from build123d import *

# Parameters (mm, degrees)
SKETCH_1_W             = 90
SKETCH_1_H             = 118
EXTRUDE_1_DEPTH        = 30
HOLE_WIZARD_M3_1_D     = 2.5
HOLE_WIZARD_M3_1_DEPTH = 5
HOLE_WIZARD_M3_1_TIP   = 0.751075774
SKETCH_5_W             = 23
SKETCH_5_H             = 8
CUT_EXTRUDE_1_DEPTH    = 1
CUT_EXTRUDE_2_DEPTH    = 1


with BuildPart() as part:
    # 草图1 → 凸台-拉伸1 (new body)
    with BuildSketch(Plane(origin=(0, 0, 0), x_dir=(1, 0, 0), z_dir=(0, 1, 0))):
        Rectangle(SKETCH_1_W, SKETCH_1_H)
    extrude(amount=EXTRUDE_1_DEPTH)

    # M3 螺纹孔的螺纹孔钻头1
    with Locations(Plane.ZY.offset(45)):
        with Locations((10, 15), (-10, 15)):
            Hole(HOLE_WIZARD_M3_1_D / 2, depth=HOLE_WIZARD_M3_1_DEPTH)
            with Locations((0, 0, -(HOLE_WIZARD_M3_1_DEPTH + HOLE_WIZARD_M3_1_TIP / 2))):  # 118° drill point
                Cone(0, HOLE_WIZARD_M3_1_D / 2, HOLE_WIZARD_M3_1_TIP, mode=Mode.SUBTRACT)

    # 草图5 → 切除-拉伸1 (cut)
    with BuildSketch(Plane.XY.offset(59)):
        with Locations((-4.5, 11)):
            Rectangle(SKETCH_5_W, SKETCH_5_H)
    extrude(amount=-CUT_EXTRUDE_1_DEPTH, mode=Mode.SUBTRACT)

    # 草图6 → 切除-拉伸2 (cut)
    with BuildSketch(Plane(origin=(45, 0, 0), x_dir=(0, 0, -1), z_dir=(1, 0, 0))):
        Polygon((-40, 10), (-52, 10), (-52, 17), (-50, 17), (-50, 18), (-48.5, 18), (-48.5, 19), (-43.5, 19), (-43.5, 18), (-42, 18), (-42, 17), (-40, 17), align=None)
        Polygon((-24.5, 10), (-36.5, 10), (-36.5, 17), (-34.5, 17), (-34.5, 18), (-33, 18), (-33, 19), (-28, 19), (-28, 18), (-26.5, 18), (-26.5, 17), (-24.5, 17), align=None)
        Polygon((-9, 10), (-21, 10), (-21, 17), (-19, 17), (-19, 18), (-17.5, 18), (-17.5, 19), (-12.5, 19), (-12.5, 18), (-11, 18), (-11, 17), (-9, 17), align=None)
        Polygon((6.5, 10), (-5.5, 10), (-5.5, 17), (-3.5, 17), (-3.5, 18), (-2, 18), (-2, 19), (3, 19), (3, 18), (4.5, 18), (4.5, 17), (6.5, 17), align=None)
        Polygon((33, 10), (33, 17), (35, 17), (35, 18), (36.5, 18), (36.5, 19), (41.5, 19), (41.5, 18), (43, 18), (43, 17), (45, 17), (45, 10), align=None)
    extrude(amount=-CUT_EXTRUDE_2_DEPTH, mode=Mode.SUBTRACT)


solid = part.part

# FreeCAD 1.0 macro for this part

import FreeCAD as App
import Part
import Sketcher
Q = App.Units.Quantity

doc = App.newDocument("Part")
body = doc.addObject("PartDesign::Body", "Body")

# Sketch on XZ plane
sketch1 = body.newObject("Sketcher::SketchObject", "Sketch")
sketch1.AttachmentSupport = (doc.getObject("XZ_Plane"), [""])
sketch1.MapMode = "FlatFace"
sketch1.addGeometry([
    Part.LineSegment(App.Vector(-45, -59, 0), App.Vector(-45, 59, 0)),
    Part.LineSegment(App.Vector(-45, 59, 0), App.Vector(45, 59, 0)),
    Part.LineSegment(App.Vector(45, 59, 0), App.Vector(45, -59, 0)),
    Part.LineSegment(App.Vector(45, -59, 0), App.Vector(-45, -59, 0)),
], False)
sketch1.addConstraint([
    Sketcher.Constraint("Coincident", 0, 2, 1, 1),
    Sketcher.Constraint("Coincident", 1, 2, 2, 1),
    Sketcher.Constraint("Coincident", 2, 2, 3, 1),
    Sketcher.Constraint("Coincident", 3, 2, 0, 1),
    Sketcher.Constraint("Vertical", 0),
    Sketcher.Constraint("Horizontal", 1),
    Sketcher.Constraint("Vertical", 2),
    Sketcher.Constraint("Horizontal", 3),
    Sketcher.Constraint("Symmetric", 0, 2, 2, 2, -1, 1),
    Sketcher.Constraint("DistanceX", 1, 1, 1, 2, Q("90 mm")),
    Sketcher.Constraint("DistanceY", 0, 1, 0, 2, Q("118 mm")),
])
pad1 = body.newObject("PartDesign::Pad", "Pad")
pad1.Profile = sketch1
pad1.Length = 30
pad1.Reversed = True

# Sketch on YZ plane
sketch2 = body.newObject("Sketcher::SketchObject", "Sketch001")
sketch2.AttachmentSupport = (doc.getObject("YZ_Plane"), [""])
sketch2.MapMode = "FlatFace"
sketch2.AttachmentOffset = App.Placement(App.Vector(0, 0, -45), App.Rotation())
sketch2.addGeometry([
    Part.Circle(App.Vector(15, 10, 0), App.Vector(0, 0, 1), 1.25),
    Part.Circle(App.Vector(15, -10, 0), App.Vector(0, 0, 1), 1.25),
], False)
sketch2.addConstraint([
    Sketcher.Constraint("Equal", 0, 1),
    Sketcher.Constraint("Symmetric", 0, 3, 1, 3, -1),
    Sketcher.Constraint("Diameter", 0, Q("2.5 mm")),
    Sketcher.Constraint("DistanceX", -1, 1, 0, 3, Q("15 mm")),
    Sketcher.Constraint("DistanceY", -1, 1, 0, 3, Q("10 mm")),
])
doc.recompute()
hole = body.newObject("PartDesign::Hole", "Hole")
hole.Profile = sketch2
hole.ThreadType = "None"
hole.Diameter = 2.5
hole.DepthType = "Dimension"
hole.Depth = 5
hole.DrillPoint = "Angled"
hole.DrillPointAngle = 118
hole.Reversed = True

# Sketch on XY plane
sketch3 = body.newObject("Sketcher::SketchObject", "Sketch002")
sketch3.AttachmentSupport = (doc.getObject("XY_Plane"), [""])
sketch3.MapMode = "FlatFace"
sketch3.AttachmentOffset = App.Placement(App.Vector(0, 0, 59), App.Rotation())
sketch3.addGeometry([
    Part.LineSegment(App.Vector(-16, 15, 0), App.Vector(-16, 7, 0)),
    Part.LineSegment(App.Vector(-16, 7, 0), App.Vector(7, 7, 0)),
    Part.LineSegment(App.Vector(7, 7, 0), App.Vector(7, 15, 0)),
    Part.LineSegment(App.Vector(7, 15, 0), App.Vector(-16, 15, 0)),
], False)
sketch3.addConstraint([
    Sketcher.Constraint("Coincident", 0, 2, 1, 1),
    Sketcher.Constraint("Coincident", 1, 2, 2, 1),
    Sketcher.Constraint("Coincident", 2, 2, 3, 1),
    Sketcher.Constraint("Coincident", 3, 2, 0, 1),
    Sketcher.Constraint("Vertical", 0),
    Sketcher.Constraint("Horizontal", 1),
    Sketcher.Constraint("Vertical", 2),
    Sketcher.Constraint("Horizontal", 3),
    Sketcher.Constraint("DistanceX", 1, 1, 1, 2, Q("23 mm")),
    Sketcher.Constraint("DistanceY", 0, 2, 0, 1, Q("8 mm")),
    Sketcher.Constraint("DistanceX", 0, 2, -1, 1, Q("16 mm")),
    Sketcher.Constraint("DistanceY", -1, 1, 0, 2, Q("7 mm")),
])
pocket1 = body.newObject("PartDesign::Pocket", "Pocket")
pocket1.Profile = sketch3
pocket1.Length = 1

# Sketch on YZ plane
sketch4 = body.newObject("Sketcher::SketchObject", "Sketch003")
sketch4.AttachmentSupport = (doc.getObject("YZ_Plane"), [""])
sketch4.MapMode = "FlatFace"
sketch4.AttachmentOffset = App.Placement(App.Vector(0, 0, 45), App.Rotation())
sketch4.addGeometry([
    Part.LineSegment(App.Vector(10, 52, 0), App.Vector(10, 40, 0)),  # 0
    Part.LineSegment(App.Vector(10, 40, 0), App.Vector(17, 40, 0)),  # 1
    Part.LineSegment(App.Vector(17, 40, 0), App.Vector(17, 42, 0)),  # 2
    Part.LineSegment(App.Vector(17, 42, 0), App.Vector(18, 42, 0)),  # 3
    Part.LineSegment(App.Vector(18, 42, 0), App.Vector(18, 43.5, 0)),  # 4
    Part.LineSegment(App.Vector(18, 43.5, 0), App.Vector(19, 43.5, 0)),  # 5
    Part.LineSegment(App.Vector(19, 43.5, 0), App.Vector(19, 48.5, 0)),  # 6
    Part.LineSegment(App.Vector(19, 48.5, 0), App.Vector(18, 48.5, 0)),  # 7
    Part.LineSegment(App.Vector(18, 48.5, 0), App.Vector(18, 50, 0)),  # 8
    Part.LineSegment(App.Vector(18, 50, 0), App.Vector(17, 50, 0)),  # 9
    Part.LineSegment(App.Vector(17, 50, 0), App.Vector(17, 52, 0)),  # 10
    Part.LineSegment(App.Vector(17, 52, 0), App.Vector(10, 52, 0)),  # 11
    Part.LineSegment(App.Vector(10, 36.5, 0), App.Vector(10, 24.5, 0)),  # 12
    Part.LineSegment(App.Vector(10, 24.5, 0), App.Vector(17, 24.5, 0)),  # 13
    Part.LineSegment(App.Vector(17, 24.5, 0), App.Vector(17, 26.5, 0)),  # 14
    Part.LineSegment(App.Vector(17, 26.5, 0), App.Vector(18, 26.5, 0)),  # 15
    Part.LineSegment(App.Vector(18, 26.5, 0), App.Vector(18, 28, 0)),  # 16
    Part.LineSegment(App.Vector(18, 28, 0), App.Vector(19, 28, 0)),  # 17
    Part.LineSegment(App.Vector(19, 28, 0), App.Vector(19, 33, 0)),  # 18
    Part.LineSegment(App.Vector(19, 33, 0), App.Vector(18, 33, 0)),  # 19
    Part.LineSegment(App.Vector(18, 33, 0), App.Vector(18, 34.5, 0)),  # 20
    Part.LineSegment(App.Vector(18, 34.5, 0), App.Vector(17, 34.5, 0)),  # 21
    Part.LineSegment(App.Vector(17, 34.5, 0), App.Vector(17, 36.5, 0)),  # 22
    Part.LineSegment(App.Vector(17, 36.5, 0), App.Vector(10, 36.5, 0)),  # 23
    Part.LineSegment(App.Vector(10, 21, 0), App.Vector(10, 9, 0)),  # 24
    Part.LineSegment(App.Vector(10, 9, 0), App.Vector(17, 9, 0)),  # 25
    Part.LineSegment(App.Vector(17, 9, 0), App.Vector(17, 11, 0)),  # 26
    Part.LineSegment(App.Vector(17, 11, 0), App.Vector(18, 11, 0)),  # 27
    Part.LineSegment(App.Vector(18, 11, 0), App.Vector(18, 12.5, 0)),  # 28
    Part.LineSegment(App.Vector(18, 12.5, 0), App.Vector(19, 12.5, 0)),  # 29
    Part.LineSegment(App.Vector(19, 12.5, 0), App.Vector(19, 17.5, 0)),  # 30
    Part.LineSegment(App.Vector(19, 17.5, 0), App.Vector(18, 17.5, 0)),  # 31
    Part.LineSegment(App.Vector(18, 17.5, 0), App.Vector(18, 19, 0)),  # 32
    Part.LineSegment(App.Vector(18, 19, 0), App.Vector(17, 19, 0)),  # 33
    Part.LineSegment(App.Vector(17, 19, 0), App.Vector(17, 21, 0)),  # 34
    Part.LineSegment(App.Vector(17, 21, 0), App.Vector(10, 21, 0)),  # 35
    Part.LineSegment(App.Vector(10, 5.5, 0), App.Vector(10, -6.5, 0)),  # 36
    Part.LineSegment(App.Vector(10, -6.5, 0), App.Vector(17, -6.5, 0)),  # 37
    Part.LineSegment(App.Vector(17, -6.5, 0), App.Vector(17, -4.5, 0)),  # 38
    Part.LineSegment(App.Vector(17, -4.5, 0), App.Vector(18, -4.5, 0)),  # 39
    Part.LineSegment(App.Vector(18, -4.5, 0), App.Vector(18, -3, 0)),  # 40
    Part.LineSegment(App.Vector(18, -3, 0), App.Vector(19, -3, 0)),  # 41
    Part.LineSegment(App.Vector(19, -3, 0), App.Vector(19, 2, 0)),  # 42
    Part.LineSegment(App.Vector(19, 2, 0), App.Vector(18, 2, 0)),  # 43
    Part.LineSegment(App.Vector(18, 2, 0), App.Vector(18, 3.5, 0)),  # 44
    Part.LineSegment(App.Vector(18, 3.5, 0), App.Vector(17, 3.5, 0)),  # 45
    Part.LineSegment(App.Vector(17, 3.5, 0), App.Vector(17, 5.5, 0)),  # 46
    Part.LineSegment(App.Vector(17, 5.5, 0), App.Vector(10, 5.5, 0)),  # 47
    Part.LineSegment(App.Vector(17, -33, 0), App.Vector(10, -33, 0)),  # 48
    Part.LineSegment(App.Vector(10, -33, 0), App.Vector(10, -45, 0)),  # 49
    Part.LineSegment(App.Vector(10, -45, 0), App.Vector(17, -45, 0)),  # 50
    Part.LineSegment(App.Vector(17, -45, 0), App.Vector(17, -43, 0)),  # 51
    Part.LineSegment(App.Vector(17, -43, 0), App.Vector(18, -43, 0)),  # 52
    Part.LineSegment(App.Vector(18, -43, 0), App.Vector(18, -41.5, 0)),  # 53
    Part.LineSegment(App.Vector(18, -41.5, 0), App.Vector(19, -41.5, 0)),  # 54
    Part.LineSegment(App.Vector(19, -41.5, 0), App.Vector(19, -36.5, 0)),  # 55
    Part.LineSegment(App.Vector(19, -36.5, 0), App.Vector(18, -36.5, 0)),  # 56
    Part.LineSegment(App.Vector(18, -36.5, 0), App.Vector(18, -35, 0)),  # 57
    Part.LineSegment(App.Vector(18, -35, 0), App.Vector(17, -35, 0)),  # 58
    Part.LineSegment(App.Vector(17, -35, 0), App.Vector(17, -33, 0)),  # 59
], False)
sketch4.addConstraint([
    Sketcher.Constraint("Coincident", 0, 2, 1, 1),
    Sketcher.Constraint("Coincident", 1, 2, 2, 1),
    Sketcher.Constraint("Coincident", 2, 2, 3, 1),
    Sketcher.Constraint("Coincident", 3, 2, 4, 1),
    Sketcher.Constraint("Coincident", 4, 2, 5, 1),
    Sketcher.Constraint("Coincident", 5, 2, 6, 1),
    Sketcher.Constraint("Coincident", 6, 2, 7, 1),
    Sketcher.Constraint("Coincident", 7, 2, 8, 1),
    Sketcher.Constraint("Coincident", 8, 2, 9, 1),
    Sketcher.Constraint("Coincident", 9, 2, 10, 1),
    Sketcher.Constraint("Coincident", 10, 2, 11, 1),
    Sketcher.Constraint("Coincident", 11, 2, 0, 1),
    Sketcher.Constraint("Coincident", 12, 2, 13, 1),
    Sketcher.Constraint("Coincident", 13, 2, 14, 1),
    Sketcher.Constraint("Coincident", 14, 2, 15, 1),
    Sketcher.Constraint("Coincident", 15, 2, 16, 1),
    Sketcher.Constraint("Coincident", 16, 2, 17, 1),
    Sketcher.Constraint("Coincident", 17, 2, 18, 1),
    Sketcher.Constraint("Coincident", 18, 2, 19, 1),
    Sketcher.Constraint("Coincident", 19, 2, 20, 1),
    Sketcher.Constraint("Coincident", 20, 2, 21, 1),
    Sketcher.Constraint("Coincident", 21, 2, 22, 1),
    Sketcher.Constraint("Coincident", 22, 2, 23, 1),
    Sketcher.Constraint("Coincident", 23, 2, 12, 1),
    Sketcher.Constraint("Coincident", 24, 2, 25, 1),
    Sketcher.Constraint("Coincident", 25, 2, 26, 1),
    Sketcher.Constraint("Coincident", 26, 2, 27, 1),
    Sketcher.Constraint("Coincident", 27, 2, 28, 1),
    Sketcher.Constraint("Coincident", 28, 2, 29, 1),
    Sketcher.Constraint("Coincident", 29, 2, 30, 1),
    Sketcher.Constraint("Coincident", 30, 2, 31, 1),
    Sketcher.Constraint("Coincident", 31, 2, 32, 1),
    Sketcher.Constraint("Coincident", 32, 2, 33, 1),
    Sketcher.Constraint("Coincident", 33, 2, 34, 1),
    Sketcher.Constraint("Coincident", 34, 2, 35, 1),
    Sketcher.Constraint("Coincident", 35, 2, 24, 1),
    Sketcher.Constraint("Coincident", 36, 2, 37, 1),
    Sketcher.Constraint("Coincident", 37, 2, 38, 1),
    Sketcher.Constraint("Coincident", 38, 2, 39, 1),
    Sketcher.Constraint("Coincident", 39, 2, 40, 1),
    Sketcher.Constraint("Coincident", 40, 2, 41, 1),
    Sketcher.Constraint("Coincident", 41, 2, 42, 1),
    Sketcher.Constraint("Coincident", 42, 2, 43, 1),
    Sketcher.Constraint("Coincident", 43, 2, 44, 1),
    Sketcher.Constraint("Coincident", 44, 2, 45, 1),
    Sketcher.Constraint("Coincident", 45, 2, 46, 1),
    Sketcher.Constraint("Coincident", 46, 2, 47, 1),
    Sketcher.Constraint("Coincident", 47, 2, 36, 1),
    Sketcher.Constraint("Coincident", 48, 2, 49, 1),
    Sketcher.Constraint("Coincident", 49, 2, 50, 1),
    Sketcher.Constraint("Coincident", 50, 2, 51, 1),
    Sketcher.Constraint("Coincident", 51, 2, 52, 1),
    Sketcher.Constraint("Coincident", 52, 2, 53, 1),
    Sketcher.Constraint("Coincident", 53, 2, 54, 1),
    Sketcher.Constraint("Coincident", 54, 2, 55, 1),
    Sketcher.Constraint("Coincident", 55, 2, 56, 1),
    Sketcher.Constraint("Coincident", 56, 2, 57, 1),
    Sketcher.Constraint("Coincident", 57, 2, 58, 1),
    Sketcher.Constraint("Coincident", 58, 2, 59, 1),
    Sketcher.Constraint("Coincident", 59, 2, 48, 1),
    Sketcher.Constraint("Vertical", 0),
    Sketcher.Constraint("Horizontal", 1),
    Sketcher.Constraint("Vertical", 2),
    Sketcher.Constraint("Horizontal", 3),
    Sketcher.Constraint("Vertical", 4),
    Sketcher.Constraint("Horizontal", 5),
    Sketcher.Constraint("Vertical", 6),
    Sketcher.Constraint("Horizontal", 7),
    Sketcher.Constraint("Vertical", 8),
    Sketcher.Constraint("Horizontal", 9),
    Sketcher.Constraint("Vertical", 10),
    Sketcher.Constraint("Horizontal", 11),
    Sketcher.Constraint("Vertical", 12),
    Sketcher.Constraint("Horizontal", 13),
    Sketcher.Constraint("Vertical", 14),
    Sketcher.Constraint("Horizontal", 15),
    Sketcher.Constraint("Vertical", 16),
    Sketcher.Constraint("Horizontal", 17),
    Sketcher.Constraint("Vertical", 18),
    Sketcher.Constraint("Horizontal", 19),
    Sketcher.Constraint("Vertical", 20),
    Sketcher.Constraint("Horizontal", 21),
    Sketcher.Constraint("Vertical", 22),
    Sketcher.Constraint("Horizontal", 23),
    Sketcher.Constraint("Vertical", 24),
    Sketcher.Constraint("Horizontal", 25),
    Sketcher.Constraint("Vertical", 26),
    Sketcher.Constraint("Horizontal", 27),
    Sketcher.Constraint("Vertical", 28),
    Sketcher.Constraint("Horizontal", 29),
    Sketcher.Constraint("Vertical", 30),
    Sketcher.Constraint("Horizontal", 31),
    Sketcher.Constraint("Vertical", 32),
    Sketcher.Constraint("Horizontal", 33),
    Sketcher.Constraint("Vertical", 34),
    Sketcher.Constraint("Horizontal", 35),
    Sketcher.Constraint("Vertical", 36),
    Sketcher.Constraint("Horizontal", 37),
    Sketcher.Constraint("Vertical", 38),
    Sketcher.Constraint("Horizontal", 39),
    Sketcher.Constraint("Vertical", 40),
    Sketcher.Constraint("Horizontal", 41),
    Sketcher.Constraint("Vertical", 42),
    Sketcher.Constraint("Horizontal", 43),
    Sketcher.Constraint("Vertical", 44),
    Sketcher.Constraint("Horizontal", 45),
    Sketcher.Constraint("Vertical", 46),
    Sketcher.Constraint("Horizontal", 47),
    Sketcher.Constraint("Horizontal", 48),
    Sketcher.Constraint("Vertical", 49),
    Sketcher.Constraint("Horizontal", 50),
    Sketcher.Constraint("Vertical", 51),
    Sketcher.Constraint("Horizontal", 52),
    Sketcher.Constraint("Vertical", 53),
    Sketcher.Constraint("Horizontal", 54),
    Sketcher.Constraint("Vertical", 55),
    Sketcher.Constraint("Horizontal", 56),
    Sketcher.Constraint("Vertical", 57),
    Sketcher.Constraint("Horizontal", 58),
    Sketcher.Constraint("Vertical", 59),
    Sketcher.Constraint("Vertical", 4, 2, 7, 2),
    Sketcher.Constraint("Vertical", 2, 2, 9, 2),
    Sketcher.Constraint("Vertical", 11, 2, 12, 2),
    Sketcher.Constraint("Vertical", 10, 2, 13, 2),
    Sketcher.Constraint("Vertical", 8, 2, 15, 2),
    Sketcher.Constraint("Vertical", 6, 2, 17, 2),
    Sketcher.Constraint("Vertical", 16, 2, 19, 2),
    Sketcher.Constraint("Vertical", 14, 2, 21, 2),
    Sketcher.Constraint("Vertical", 23, 2, 24, 2),
    Sketcher.Constraint("Vertical", 22, 2, 25, 2),
    Sketcher.Constraint("Vertical", 20, 2, 27, 2),
    Sketcher.Constraint("Vertical", 18, 2, 29, 2),
    Sketcher.Constraint("Vertical", 28, 2, 31, 2),
    Sketcher.Constraint("Vertical", 26, 2, 33, 2),
    Sketcher.Constraint("Vertical", 35, 2, 36, 2),
    Sketcher.Constraint("Vertical", 34, 2, 37, 2),
    Sketcher.Constraint("Vertical", 32, 2, 39, 2),
    Sketcher.Constraint("Vertical", 30, 2, 41, 2),
    Sketcher.Constraint("Vertical", 40, 2, 43, 2),
    Sketcher.Constraint("Vertical", 38, 2, 45, 2),
    Sketcher.Constraint("Vertical", 47, 2, 48, 2),
    Sketcher.Constraint("Vertical", 46, 2, 50, 2),
    Sketcher.Constraint("Vertical", 44, 2, 52, 2),
    Sketcher.Constraint("Vertical", 42, 2, 54, 2),
    Sketcher.Constraint("Vertical", 53, 2, 56, 2),
    Sketcher.Constraint("Vertical", 51, 2, 58, 2),
    Sketcher.Constraint("Equal", 3, 5),
    Sketcher.Constraint("Equal", 4, 8),
    Sketcher.Constraint("Equal", 2, 10),
    Sketcher.Constraint("Equal", 0, 12),
    Sketcher.Constraint("Equal", 10, 14),
    Sketcher.Constraint("Equal", 8, 16),
    Sketcher.Constraint("Equal", 6, 18),
    Sketcher.Constraint("Equal", 16, 20),
    Sketcher.Constraint("Equal", 12, 24),
    Sketcher.Constraint("Equal", 22, 26),
    Sketcher.Constraint("Equal", 20, 28),
    Sketcher.Constraint("Equal", 18, 30),
    Sketcher.Constraint("Equal", 28, 32),
    Sketcher.Constraint("Equal", 24, 36),
    Sketcher.Constraint("Equal", 34, 38),
    Sketcher.Constraint("Equal", 32, 40),
    Sketcher.Constraint("Equal", 30, 42),
    Sketcher.Constraint("Equal", 40, 44),
    Sketcher.Constraint("Equal", 36, 49),
    Sketcher.Constraint("Equal", 46, 51),
    Sketcher.Constraint("Equal", 44, 53),
    Sketcher.Constraint("Equal", 42, 55),
    Sketcher.Constraint("Equal", 53, 57),
    Sketcher.Constraint("DistanceX", 1, 1, 1, 2, Q("7 mm")),
    Sketcher.Constraint("DistanceX", 3, 1, 3, 2, Q("1 mm")),
    Sketcher.Constraint("DistanceY", 0, 2, 0, 1, Q("12 mm")),
    Sketcher.Constraint("DistanceY", 2, 1, 2, 2, Q("2 mm")),
    Sketcher.Constraint("DistanceY", 6, 1, 6, 2, Q("5 mm")),
    Sketcher.Constraint("DistanceX", -1, 1, 0, 2, Q("10 mm")),
    Sketcher.Constraint("DistanceY", -1, 1, 0, 2, Q("40 mm")),
    Sketcher.Constraint("DistanceY", -1, 1, 16, 2, Q("28 mm")),
    Sketcher.Constraint("DistanceY", -1, 1, 24, 2, Q("9 mm")),
    Sketcher.Constraint("DistanceY", 40, 2, -1, 1, Q("3 mm")),
    Sketcher.Constraint("DistanceY", 48, 2, -1, 1, Q("33 mm")),
])
pocket2 = body.newObject("PartDesign::Pocket", "Pocket001")
pocket2.Profile = sketch4
pocket2.Length = 1

doc.recompute()
